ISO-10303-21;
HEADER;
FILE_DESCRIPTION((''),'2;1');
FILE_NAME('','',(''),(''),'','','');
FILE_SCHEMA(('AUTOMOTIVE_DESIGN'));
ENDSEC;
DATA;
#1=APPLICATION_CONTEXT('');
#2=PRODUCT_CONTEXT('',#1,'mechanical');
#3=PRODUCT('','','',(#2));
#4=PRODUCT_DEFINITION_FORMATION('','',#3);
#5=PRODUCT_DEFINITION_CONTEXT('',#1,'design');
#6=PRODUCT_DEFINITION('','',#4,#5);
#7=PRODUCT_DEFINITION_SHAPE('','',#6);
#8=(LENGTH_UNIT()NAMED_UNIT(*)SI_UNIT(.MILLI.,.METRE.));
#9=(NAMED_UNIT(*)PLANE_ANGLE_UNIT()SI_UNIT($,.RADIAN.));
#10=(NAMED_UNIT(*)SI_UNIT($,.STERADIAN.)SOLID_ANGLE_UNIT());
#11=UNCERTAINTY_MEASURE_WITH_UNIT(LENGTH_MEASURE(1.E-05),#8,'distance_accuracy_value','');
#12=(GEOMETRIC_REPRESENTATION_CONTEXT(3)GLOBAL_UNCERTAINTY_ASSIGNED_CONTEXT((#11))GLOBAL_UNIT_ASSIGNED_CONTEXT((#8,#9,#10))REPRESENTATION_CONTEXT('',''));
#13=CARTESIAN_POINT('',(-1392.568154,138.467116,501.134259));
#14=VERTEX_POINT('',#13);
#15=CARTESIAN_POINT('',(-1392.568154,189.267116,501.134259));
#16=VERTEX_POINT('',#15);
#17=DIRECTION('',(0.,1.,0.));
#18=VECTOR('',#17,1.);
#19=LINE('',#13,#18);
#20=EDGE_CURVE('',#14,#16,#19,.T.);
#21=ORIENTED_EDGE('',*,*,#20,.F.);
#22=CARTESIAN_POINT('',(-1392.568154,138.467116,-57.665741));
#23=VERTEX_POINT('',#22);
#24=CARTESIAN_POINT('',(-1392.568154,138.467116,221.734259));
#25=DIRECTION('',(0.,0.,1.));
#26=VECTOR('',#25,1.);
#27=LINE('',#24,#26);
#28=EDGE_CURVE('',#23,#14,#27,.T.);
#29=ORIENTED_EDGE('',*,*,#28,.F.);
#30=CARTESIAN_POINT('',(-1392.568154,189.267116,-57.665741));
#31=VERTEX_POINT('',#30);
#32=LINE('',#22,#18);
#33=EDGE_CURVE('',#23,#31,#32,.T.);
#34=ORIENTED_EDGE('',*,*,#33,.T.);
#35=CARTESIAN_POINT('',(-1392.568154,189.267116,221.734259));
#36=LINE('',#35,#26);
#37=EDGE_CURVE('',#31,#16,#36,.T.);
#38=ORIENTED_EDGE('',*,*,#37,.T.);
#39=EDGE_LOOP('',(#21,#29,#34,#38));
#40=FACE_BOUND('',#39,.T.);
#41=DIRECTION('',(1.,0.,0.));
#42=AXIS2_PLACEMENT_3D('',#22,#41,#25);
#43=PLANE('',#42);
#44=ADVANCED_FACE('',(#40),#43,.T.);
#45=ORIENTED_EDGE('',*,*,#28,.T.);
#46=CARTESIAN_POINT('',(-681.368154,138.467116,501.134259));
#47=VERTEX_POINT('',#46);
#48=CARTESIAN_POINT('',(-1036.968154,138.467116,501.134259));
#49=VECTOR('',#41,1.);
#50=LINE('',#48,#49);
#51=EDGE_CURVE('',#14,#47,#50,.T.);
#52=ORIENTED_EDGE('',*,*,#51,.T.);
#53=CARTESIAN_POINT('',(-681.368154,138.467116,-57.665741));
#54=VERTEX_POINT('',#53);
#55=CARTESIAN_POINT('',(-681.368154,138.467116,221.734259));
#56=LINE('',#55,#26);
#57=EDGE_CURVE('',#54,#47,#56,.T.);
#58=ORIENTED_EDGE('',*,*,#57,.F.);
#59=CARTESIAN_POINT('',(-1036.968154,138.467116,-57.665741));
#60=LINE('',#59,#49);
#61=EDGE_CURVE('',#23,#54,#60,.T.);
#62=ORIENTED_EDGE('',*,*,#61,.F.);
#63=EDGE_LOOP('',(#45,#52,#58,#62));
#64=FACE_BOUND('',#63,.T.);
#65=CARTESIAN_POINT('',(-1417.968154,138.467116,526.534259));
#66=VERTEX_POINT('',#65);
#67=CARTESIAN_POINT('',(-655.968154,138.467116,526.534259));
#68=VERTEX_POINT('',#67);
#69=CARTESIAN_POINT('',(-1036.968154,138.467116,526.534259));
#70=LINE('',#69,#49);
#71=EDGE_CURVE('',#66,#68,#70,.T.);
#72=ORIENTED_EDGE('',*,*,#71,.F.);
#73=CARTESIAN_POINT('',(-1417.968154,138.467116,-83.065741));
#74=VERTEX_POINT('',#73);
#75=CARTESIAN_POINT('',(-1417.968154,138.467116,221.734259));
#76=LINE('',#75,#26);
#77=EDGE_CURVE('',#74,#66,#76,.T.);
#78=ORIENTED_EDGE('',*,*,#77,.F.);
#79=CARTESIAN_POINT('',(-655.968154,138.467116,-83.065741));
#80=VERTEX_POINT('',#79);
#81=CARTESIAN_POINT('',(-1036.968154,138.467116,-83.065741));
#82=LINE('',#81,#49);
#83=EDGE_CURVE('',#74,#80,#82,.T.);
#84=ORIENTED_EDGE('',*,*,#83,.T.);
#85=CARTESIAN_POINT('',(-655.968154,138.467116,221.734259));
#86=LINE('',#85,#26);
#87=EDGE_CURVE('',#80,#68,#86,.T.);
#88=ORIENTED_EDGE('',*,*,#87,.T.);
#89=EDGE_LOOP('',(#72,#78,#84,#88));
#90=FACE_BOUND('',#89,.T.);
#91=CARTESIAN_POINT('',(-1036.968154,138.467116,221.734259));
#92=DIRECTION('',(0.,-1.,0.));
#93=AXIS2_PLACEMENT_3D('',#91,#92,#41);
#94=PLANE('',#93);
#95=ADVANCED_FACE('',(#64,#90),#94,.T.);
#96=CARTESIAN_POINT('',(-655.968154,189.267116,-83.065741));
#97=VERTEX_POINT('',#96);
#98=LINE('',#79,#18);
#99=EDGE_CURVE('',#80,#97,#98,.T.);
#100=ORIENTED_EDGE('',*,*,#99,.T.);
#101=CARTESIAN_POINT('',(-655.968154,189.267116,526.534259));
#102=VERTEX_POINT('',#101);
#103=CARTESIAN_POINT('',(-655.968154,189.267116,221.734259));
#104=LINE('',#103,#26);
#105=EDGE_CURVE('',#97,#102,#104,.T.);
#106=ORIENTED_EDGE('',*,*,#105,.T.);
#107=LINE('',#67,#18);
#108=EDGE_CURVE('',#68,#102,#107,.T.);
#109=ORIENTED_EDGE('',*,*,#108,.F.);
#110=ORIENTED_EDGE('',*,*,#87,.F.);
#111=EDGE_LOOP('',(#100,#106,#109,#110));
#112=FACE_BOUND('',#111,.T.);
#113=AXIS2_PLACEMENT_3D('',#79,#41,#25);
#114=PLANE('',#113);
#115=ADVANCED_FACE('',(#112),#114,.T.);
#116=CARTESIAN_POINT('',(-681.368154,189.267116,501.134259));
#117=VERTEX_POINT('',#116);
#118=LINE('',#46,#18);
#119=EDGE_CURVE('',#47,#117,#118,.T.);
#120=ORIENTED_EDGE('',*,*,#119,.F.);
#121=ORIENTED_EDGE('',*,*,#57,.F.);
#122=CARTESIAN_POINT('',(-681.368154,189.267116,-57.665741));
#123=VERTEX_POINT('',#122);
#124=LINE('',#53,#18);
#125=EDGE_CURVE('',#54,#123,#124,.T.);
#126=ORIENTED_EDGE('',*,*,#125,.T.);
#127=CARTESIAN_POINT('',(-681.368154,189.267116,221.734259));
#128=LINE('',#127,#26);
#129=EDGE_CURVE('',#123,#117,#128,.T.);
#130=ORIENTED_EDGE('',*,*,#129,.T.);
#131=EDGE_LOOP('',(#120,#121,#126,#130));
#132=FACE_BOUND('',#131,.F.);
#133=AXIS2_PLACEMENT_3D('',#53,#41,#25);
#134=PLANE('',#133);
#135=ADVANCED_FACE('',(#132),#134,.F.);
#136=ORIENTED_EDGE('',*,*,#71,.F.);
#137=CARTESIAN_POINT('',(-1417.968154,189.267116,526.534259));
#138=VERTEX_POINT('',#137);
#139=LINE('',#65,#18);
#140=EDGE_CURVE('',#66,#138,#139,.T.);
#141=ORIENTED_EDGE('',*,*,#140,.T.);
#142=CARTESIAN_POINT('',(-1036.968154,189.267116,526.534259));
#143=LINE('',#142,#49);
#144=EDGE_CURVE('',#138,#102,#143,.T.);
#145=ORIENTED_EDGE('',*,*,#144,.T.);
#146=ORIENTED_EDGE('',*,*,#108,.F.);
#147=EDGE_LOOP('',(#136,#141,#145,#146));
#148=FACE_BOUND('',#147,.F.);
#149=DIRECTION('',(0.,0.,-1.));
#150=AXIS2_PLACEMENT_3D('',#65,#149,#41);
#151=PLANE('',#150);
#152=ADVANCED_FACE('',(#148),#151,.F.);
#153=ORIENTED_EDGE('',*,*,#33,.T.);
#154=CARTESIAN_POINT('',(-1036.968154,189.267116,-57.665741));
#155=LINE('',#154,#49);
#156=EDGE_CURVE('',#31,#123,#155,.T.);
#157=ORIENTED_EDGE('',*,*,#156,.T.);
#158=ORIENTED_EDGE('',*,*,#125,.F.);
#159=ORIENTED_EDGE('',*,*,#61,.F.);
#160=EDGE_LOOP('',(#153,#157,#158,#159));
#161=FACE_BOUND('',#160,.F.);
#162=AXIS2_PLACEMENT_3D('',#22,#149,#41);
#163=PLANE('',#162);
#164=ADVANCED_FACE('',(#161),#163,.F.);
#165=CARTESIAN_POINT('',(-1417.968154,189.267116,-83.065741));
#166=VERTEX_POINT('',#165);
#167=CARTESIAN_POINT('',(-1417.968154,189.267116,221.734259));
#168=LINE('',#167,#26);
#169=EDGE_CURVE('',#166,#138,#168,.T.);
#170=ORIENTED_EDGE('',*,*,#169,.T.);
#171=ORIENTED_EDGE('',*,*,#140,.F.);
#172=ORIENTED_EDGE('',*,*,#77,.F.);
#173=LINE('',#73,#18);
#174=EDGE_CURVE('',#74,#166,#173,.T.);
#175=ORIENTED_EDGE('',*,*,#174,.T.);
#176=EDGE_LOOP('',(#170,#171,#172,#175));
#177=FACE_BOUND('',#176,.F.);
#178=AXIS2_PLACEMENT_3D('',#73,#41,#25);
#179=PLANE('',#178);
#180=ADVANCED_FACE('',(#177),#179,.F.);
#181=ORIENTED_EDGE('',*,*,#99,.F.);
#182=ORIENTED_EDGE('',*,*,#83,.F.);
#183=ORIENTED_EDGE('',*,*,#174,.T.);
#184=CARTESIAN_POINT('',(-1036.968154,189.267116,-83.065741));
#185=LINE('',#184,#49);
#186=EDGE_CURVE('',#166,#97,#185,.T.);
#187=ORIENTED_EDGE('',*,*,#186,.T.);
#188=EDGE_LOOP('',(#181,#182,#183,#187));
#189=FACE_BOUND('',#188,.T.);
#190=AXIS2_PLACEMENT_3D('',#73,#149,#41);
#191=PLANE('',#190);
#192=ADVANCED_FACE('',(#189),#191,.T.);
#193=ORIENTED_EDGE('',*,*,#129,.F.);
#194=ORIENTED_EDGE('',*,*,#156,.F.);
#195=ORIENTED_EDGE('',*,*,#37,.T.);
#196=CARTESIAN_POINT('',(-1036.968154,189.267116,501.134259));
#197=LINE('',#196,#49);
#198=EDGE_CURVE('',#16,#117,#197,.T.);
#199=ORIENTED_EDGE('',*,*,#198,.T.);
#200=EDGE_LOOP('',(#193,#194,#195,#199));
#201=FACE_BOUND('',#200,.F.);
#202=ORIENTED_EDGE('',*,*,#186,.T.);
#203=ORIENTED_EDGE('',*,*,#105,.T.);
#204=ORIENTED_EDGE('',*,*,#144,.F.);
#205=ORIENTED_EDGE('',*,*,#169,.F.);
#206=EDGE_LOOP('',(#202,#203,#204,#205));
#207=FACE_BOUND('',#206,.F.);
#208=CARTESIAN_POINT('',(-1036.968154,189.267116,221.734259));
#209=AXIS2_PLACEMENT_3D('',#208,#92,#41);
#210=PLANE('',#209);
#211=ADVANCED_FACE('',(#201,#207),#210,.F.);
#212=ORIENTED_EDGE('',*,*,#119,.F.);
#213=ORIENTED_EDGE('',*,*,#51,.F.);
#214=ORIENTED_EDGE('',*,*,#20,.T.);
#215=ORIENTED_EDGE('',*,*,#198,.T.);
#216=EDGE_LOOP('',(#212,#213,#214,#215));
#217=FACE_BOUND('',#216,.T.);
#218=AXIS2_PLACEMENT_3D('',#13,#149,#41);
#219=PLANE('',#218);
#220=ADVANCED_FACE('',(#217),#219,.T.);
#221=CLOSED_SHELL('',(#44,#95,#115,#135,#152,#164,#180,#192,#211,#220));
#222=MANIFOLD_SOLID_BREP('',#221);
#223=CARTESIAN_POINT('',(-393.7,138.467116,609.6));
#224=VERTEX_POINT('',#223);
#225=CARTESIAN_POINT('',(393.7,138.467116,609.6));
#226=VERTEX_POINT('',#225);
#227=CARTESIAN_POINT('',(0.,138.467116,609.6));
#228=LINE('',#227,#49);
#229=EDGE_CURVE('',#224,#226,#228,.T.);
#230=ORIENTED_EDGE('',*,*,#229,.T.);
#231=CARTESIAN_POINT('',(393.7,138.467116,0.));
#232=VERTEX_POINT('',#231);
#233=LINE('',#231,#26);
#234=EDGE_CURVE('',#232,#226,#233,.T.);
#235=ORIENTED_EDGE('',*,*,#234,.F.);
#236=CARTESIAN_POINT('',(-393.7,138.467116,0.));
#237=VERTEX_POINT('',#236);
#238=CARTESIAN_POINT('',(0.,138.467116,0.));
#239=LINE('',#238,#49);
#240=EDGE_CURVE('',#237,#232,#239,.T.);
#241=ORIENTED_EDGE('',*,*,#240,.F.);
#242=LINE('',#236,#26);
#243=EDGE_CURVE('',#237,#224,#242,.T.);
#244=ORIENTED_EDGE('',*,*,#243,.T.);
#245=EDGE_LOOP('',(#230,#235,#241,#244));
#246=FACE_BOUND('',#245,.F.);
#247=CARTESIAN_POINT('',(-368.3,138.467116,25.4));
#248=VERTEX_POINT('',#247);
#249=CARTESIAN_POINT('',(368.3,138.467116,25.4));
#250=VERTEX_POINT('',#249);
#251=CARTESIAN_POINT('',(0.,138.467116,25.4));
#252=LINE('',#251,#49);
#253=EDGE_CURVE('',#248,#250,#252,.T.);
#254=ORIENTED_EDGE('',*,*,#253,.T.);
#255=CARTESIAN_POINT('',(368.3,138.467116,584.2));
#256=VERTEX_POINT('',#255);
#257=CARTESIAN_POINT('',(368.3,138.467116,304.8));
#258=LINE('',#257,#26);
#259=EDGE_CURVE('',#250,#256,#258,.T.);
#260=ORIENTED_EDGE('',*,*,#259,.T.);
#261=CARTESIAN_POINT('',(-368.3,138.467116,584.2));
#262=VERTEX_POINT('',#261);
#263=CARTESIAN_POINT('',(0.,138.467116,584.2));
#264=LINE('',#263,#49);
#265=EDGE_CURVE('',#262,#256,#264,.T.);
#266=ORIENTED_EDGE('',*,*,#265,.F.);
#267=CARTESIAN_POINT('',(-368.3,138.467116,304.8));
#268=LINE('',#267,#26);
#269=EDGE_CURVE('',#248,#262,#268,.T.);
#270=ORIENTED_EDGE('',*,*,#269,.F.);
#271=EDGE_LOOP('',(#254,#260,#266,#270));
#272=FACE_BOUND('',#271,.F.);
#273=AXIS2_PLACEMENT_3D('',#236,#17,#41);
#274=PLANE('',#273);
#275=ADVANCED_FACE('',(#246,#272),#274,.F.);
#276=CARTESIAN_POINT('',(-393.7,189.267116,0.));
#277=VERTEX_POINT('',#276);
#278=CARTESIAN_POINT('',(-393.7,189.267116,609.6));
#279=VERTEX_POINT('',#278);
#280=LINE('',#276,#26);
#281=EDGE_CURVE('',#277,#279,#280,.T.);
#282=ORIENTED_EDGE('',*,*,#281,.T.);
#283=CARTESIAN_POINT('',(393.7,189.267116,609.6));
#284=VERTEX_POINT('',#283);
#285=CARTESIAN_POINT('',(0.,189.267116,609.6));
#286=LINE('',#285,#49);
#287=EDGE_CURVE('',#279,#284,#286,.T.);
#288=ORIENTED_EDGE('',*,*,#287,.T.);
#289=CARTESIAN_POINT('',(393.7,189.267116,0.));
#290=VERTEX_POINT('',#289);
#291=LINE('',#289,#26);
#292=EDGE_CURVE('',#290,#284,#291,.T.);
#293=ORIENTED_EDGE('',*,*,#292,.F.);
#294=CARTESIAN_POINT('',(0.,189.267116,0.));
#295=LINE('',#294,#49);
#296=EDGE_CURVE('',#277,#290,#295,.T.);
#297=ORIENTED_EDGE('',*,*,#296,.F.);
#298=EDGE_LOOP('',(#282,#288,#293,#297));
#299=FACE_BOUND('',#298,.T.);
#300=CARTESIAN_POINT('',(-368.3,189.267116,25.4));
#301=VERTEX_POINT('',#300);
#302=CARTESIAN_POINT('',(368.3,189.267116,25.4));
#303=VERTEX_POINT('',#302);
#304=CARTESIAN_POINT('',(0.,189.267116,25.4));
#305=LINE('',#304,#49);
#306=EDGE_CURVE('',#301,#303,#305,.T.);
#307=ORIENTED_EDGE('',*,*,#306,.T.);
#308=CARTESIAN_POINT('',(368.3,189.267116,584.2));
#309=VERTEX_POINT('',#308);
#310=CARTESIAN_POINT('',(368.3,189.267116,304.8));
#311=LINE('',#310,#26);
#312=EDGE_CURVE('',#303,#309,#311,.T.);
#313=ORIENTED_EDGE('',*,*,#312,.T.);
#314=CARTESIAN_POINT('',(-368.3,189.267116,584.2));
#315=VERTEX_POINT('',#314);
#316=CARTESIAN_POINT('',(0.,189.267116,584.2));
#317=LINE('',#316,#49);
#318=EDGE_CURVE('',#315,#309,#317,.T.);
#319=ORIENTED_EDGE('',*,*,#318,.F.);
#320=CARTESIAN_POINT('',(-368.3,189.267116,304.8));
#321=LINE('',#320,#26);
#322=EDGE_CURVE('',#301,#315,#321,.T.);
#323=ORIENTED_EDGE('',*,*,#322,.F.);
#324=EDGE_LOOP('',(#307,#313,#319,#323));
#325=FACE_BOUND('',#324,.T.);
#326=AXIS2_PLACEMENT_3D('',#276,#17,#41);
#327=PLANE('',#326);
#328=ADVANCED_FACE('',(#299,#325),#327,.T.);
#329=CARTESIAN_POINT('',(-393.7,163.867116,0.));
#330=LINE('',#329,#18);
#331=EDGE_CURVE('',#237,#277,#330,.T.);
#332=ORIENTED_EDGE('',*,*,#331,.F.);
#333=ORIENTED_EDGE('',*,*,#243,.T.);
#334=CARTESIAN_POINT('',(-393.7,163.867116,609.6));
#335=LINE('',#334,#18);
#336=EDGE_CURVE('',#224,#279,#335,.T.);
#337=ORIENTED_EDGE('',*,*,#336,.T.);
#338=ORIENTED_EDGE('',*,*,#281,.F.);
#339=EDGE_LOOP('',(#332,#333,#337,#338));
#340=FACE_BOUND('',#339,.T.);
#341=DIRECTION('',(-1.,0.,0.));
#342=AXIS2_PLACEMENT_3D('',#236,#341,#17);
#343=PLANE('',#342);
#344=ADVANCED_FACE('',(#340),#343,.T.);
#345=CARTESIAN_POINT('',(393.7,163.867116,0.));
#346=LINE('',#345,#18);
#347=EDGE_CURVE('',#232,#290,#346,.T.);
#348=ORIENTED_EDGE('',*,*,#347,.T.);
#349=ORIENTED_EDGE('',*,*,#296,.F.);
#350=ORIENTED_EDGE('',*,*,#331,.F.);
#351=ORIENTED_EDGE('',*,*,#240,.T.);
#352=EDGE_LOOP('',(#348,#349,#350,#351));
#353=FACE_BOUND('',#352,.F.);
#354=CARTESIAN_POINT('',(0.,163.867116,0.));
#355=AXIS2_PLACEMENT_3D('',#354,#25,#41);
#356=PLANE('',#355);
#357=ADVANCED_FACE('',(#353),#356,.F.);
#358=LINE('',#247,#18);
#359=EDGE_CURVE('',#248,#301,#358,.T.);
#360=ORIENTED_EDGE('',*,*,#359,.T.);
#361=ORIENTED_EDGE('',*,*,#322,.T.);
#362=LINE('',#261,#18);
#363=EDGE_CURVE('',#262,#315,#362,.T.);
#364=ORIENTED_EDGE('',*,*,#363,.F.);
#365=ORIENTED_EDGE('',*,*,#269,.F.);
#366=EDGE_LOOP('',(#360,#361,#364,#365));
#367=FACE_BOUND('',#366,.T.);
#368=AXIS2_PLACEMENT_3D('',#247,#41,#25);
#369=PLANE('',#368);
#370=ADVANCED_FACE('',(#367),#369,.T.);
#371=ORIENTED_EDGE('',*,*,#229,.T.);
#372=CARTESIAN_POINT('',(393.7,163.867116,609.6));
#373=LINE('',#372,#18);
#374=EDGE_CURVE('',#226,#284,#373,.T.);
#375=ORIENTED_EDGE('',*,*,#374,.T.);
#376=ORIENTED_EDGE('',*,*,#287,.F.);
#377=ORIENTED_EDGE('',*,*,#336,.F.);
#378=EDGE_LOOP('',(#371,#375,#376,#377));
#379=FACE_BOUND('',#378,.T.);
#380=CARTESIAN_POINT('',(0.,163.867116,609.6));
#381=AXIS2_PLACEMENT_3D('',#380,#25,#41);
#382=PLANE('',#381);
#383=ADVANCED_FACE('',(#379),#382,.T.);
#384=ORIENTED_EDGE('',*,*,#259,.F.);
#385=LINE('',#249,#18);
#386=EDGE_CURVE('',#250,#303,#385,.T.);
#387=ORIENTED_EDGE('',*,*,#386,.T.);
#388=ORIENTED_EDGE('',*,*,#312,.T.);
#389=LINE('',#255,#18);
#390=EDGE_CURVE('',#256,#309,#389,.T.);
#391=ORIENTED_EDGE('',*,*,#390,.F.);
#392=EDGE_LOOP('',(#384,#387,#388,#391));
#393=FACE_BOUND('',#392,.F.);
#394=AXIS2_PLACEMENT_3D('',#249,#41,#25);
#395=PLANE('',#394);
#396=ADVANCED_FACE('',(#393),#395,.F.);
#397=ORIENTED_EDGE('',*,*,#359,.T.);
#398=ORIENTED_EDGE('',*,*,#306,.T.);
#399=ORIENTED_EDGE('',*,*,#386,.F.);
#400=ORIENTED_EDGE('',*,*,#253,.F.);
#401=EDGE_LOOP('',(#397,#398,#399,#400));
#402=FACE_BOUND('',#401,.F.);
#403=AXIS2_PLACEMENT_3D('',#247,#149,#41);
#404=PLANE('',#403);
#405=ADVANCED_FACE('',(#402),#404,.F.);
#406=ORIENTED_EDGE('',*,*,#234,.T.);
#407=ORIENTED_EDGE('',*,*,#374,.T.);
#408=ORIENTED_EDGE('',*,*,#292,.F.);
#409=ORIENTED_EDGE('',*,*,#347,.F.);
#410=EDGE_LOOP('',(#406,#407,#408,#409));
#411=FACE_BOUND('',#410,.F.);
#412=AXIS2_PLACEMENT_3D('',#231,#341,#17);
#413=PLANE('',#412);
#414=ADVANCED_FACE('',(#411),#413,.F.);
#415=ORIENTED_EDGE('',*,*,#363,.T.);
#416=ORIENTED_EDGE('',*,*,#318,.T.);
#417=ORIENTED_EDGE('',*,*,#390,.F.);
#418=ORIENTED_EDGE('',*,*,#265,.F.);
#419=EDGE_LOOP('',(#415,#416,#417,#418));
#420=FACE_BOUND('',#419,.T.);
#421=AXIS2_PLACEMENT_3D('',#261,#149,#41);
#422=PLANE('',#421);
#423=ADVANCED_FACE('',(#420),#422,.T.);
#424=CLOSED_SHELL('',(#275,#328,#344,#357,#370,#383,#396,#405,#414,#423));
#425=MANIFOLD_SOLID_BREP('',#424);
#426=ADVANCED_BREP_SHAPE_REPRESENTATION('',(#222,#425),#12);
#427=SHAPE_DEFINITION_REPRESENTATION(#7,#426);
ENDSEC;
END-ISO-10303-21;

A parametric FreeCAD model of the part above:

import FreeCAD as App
import Part
import Sketcher
from FreeCAD import Vector
Q = App.Units.Quantity


def add_polygon(sketch, points):
    """Adds a closed chain of lines whose ends are joined by coincident constraints."""
    first, n = sketch.GeometryCount, len(points)
    for a, b in zip(points, points[1:] + points[:1]):
        sketch.addGeometry(Part.LineSegment(App.Vector(*a, 0), App.Vector(*b, 0)), False)
    for i in range(n):
        sketch.addConstraint(Sketcher.Constraint("Coincident", first + i, 2, first + (i + 1) % n, 1))

doc = App.newDocument("Part")
body = doc.addObject("PartDesign::Body", "Body")

# Sketch on XY plane
sketch1 = doc.addObject("Sketcher::SketchObject", "Sketch")
body.addObject(sketch1)
sketch1.AttachmentSupport = (doc.XY_Plane, [""])
sketch1.MapMode = "FlatFace"
add_polygon(sketch1, [(-394, 189), (-394, 138), (394, 138), (394, 189)])  # lines 0-3
sketch1.addConstraint([
    Sketcher.Constraint("Vertical", 0),
    Sketcher.Constraint("Horizontal", 1),
    Sketcher.Constraint("Vertical", 2),
    Sketcher.Constraint("Horizontal", 3),
    Sketcher.Constraint("DistanceX", 1, 1, 1, 2, Q("31 in")),
    Sketcher.Constraint("DistanceY", 0, 2, 0, 1, Q("2 in")),
    Sketcher.Constraint("DistanceX", 0, 2, -1, 1, Q("15.5 in")),
    Sketcher.Constraint("DistanceY", -1, 1, 0, 2, Q("138.467116 mm")),
])
pad1 = doc.addObject("PartDesign::Pad", "Pad")
body.addObject(pad1)
pad1.Profile = sketch1
pad1.Length = Q("24 in")

# Sketch on XZ plane
sketch2 = doc.addObject("Sketcher::SketchObject", "Sketch001")
body.addObject(sketch2)
sketch2.AttachmentSupport = (doc.XZ_Plane, [""])
sketch2.MapMode = "FlatFace"
sketch2.AttachmentOffset = App.Placement(Vector(0, 0, -138.467116), App.Rotation())
add_polygon(sketch2, [(-368, 584), (-368, 25), (368, 25), (368, 584)])  # lines 0-3
sketch2.addConstraint([
    Sketcher.Constraint("Vertical", 0),
    Sketcher.Constraint("Horizontal", 1),
    Sketcher.Constraint("Vertical", 2),
    Sketcher.Constraint("Horizontal", 3),
    Sketcher.Constraint("DistanceX", 1, 1, 1, 2, Q("29 in")),
    Sketcher.Constraint("DistanceY", 0, 2, 0, 1, Q("22 in")),
    Sketcher.Constraint("DistanceY", -1, 1, 0, 2, Q("1 in")),
    Sketcher.Constraint("DistanceX", 0, 2, -1, 1, Q("14.5 in")),
])
pocket1 = doc.addObject("PartDesign::Pocket", "Pocket")
body.addObject(pocket1)
pocket1.Profile = sketch2
pocket1.Length = Q("2 in")
body2 = doc.addObject("PartDesign::Body", "Body001")

# Sketch on XZ plane
sketch3 = doc.addObject("Sketcher::SketchObject", "Sketch002")
body2.addObject(sketch3)
sketch3.AttachmentSupport = (doc.getObject("XZ_Plane001"), [""])
sketch3.MapMode = "FlatFace"
sketch3.AttachmentOffset = App.Placement(Vector(0, 0, -138.467116), App.Rotation())
add_polygon(sketch3, [(-1418, 527), (-1418, -83), (-656, -83), (-656, 527)])  # lines 0-3
sketch3.addConstraint([
    Sketcher.Constraint("Vertical", 0),
    Sketcher.Constraint("Horizontal", 1),
    Sketcher.Constraint("Vertical", 2),
    Sketcher.Constraint("Horizontal", 3),
    Sketcher.Constraint("DistanceX", 1, 1, 1, 2, Q("30 in")),
    Sketcher.Constraint("DistanceY", 0, 2, 0, 1, Q("24 in")),
    Sketcher.Constraint("DistanceY", 0, 2, -1, 1, Q("83.065741 mm")),
    Sketcher.Constraint("DistanceX", 0, 2, -1, 1, Q("1417.968154 mm")),
])
pad2 = doc.addObject("PartDesign::Pad", "Pad001")
body2.addObject(pad2)
pad2.Profile = sketch3
pad2.Length = Q("2 in")
pad2.Reversed = True

# Sketch on XZ plane
sketch4 = doc.addObject("Sketcher::SketchObject", "Sketch003")
body2.addObject(sketch4)
sketch4.AttachmentSupport = (doc.getObject("XZ_Plane001"), [""])
sketch4.MapMode = "FlatFace"
sketch4.AttachmentOffset = App.Placement(Vector(0, 0, -138.467116), App.Rotation())
add_polygon(sketch4, [(-1393, 501), (-1393, -58), (-681, -58), (-681, 501)])  # lines 0-3
sketch4.addConstraint([
    Sketcher.Constraint("Vertical", 0),
    Sketcher.Constraint("Horizontal", 1),
    Sketcher.Constraint("Vertical", 2),
    Sketcher.Constraint("Horizontal", 3),
    Sketcher.Constraint("DistanceX", 1, 1, 1, 2, Q("28 in")),
    Sketcher.Constraint("DistanceY", 0, 2, 0, 1, Q("22 in")),
    Sketcher.Constraint("DistanceY", 0, 2, -1, 1, Q("57.665741 mm")),
    Sketcher.Constraint("DistanceX", 0, 2, -1, 1, Q("1392.568154 mm")),
])
pocket2 = doc.addObject("PartDesign::Pocket", "Pocket001")
body2.addObject(pocket2)
pocket2.Profile = sketch4
pocket2.Length = Q("2 in")

doc.recompute()
